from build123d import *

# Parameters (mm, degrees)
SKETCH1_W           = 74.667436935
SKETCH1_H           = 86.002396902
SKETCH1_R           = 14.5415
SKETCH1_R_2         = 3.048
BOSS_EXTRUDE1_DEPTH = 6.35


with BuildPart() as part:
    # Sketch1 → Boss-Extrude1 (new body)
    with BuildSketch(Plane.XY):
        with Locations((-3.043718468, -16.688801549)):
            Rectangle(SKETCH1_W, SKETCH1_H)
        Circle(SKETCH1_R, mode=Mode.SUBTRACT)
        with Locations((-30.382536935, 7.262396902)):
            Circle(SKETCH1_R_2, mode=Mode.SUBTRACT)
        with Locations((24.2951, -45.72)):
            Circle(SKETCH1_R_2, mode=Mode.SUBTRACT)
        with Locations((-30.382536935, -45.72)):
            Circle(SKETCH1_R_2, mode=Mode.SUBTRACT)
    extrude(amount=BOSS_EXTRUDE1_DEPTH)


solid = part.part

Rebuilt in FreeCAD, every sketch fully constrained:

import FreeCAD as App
import Part
import Sketcher

V = App.Vector
Q = App.Units.Quantity

doc = App.newDocument("Part")
body = doc.addObject("PartDesign::Body", "Body")

# Sketch on XY plane
sketch1 = doc.addObject("Sketcher::SketchObject", "Sketch")
body.addObject(sketch1)
sketch1.AttachmentSupport = (doc.XY_Plane, [""])
sketch1.MapMode = "FlatFace"
sketch1.addGeometry(Part.LineSegment(V(-40.4, 26.3, 0), V(-40.4, -59.7, 0)), False)
sketch1.addGeometry(Part.LineSegment(V(-40.4, -59.7, 0), V(34.3, -59.7, 0)), False)
sketch1.addGeometry(Part.LineSegment(V(34.3, -59.7, 0), V(34.3, 26.3, 0)), False)
sketch1.addGeometry(Part.LineSegment(V(34.3, 26.3, 0), V(-40.4, 26.3, 0)), False)
sketch1.addGeometry(Part.Circle(V(-30.4, -45.7, 0), V(0, 0, 1), 3), False)
sketch1.addGeometry(Part.Circle(V(24.3, -45.7, 0), V(0, 0, 1), 3), False)
sketch1.addGeometry(Part.Circle(V(-30.4, 7.3, 0), V(0, 0, 1), 3), False)
sketch1.addGeometry(Part.Circle(V(0, 0, 0), V(0, 0, 1), 14.5), False)
sketch1.addConstraint(Sketcher.Constraint("Coincident", 0, 2, 1, 1))
sketch1.addConstraint(Sketcher.Constraint("Coincident", 1, 2, 2, 1))
sketch1.addConstraint(Sketcher.Constraint("Coincident", 2, 2, 3, 1))
sketch1.addConstraint(Sketcher.Constraint("Coincident", 3, 2, 0, 1))
sketch1.addConstraint(Sketcher.Constraint("Vertical", 0))
sketch1.addConstraint(Sketcher.Constraint("Horizontal", 1))
sketch1.addConstraint(Sketcher.Constraint("Vertical", 2))
sketch1.addConstraint(Sketcher.Constraint("Horizontal", 3))
sketch1.addConstraint(Sketcher.Constraint("Coincident", 7, 3, -1, 1))
sketch1.addConstraint(Sketcher.Constraint("Equal", 4, 5))
sketch1.addConstraint(Sketcher.Constraint("Equal", 5, 6))
sketch1.addConstraint(Sketcher.Constraint("Horizontal", 4, 3, 5, 3))
sketch1.addConstraint(Sketcher.Constraint("Vertical", 4, 3, 6, 3))
sketch1.addConstraint(Sketcher.Constraint("Diameter", 4, Q("0.24 in")))
sketch1.addConstraint(Sketcher.Constraint("Diameter", 7, Q("1.145 in")))
sketch1.addConstraint(Sketcher.Constraint("DistanceY", 4, 3, -1, 1, Q("1.8 in")))
sketch1.addConstraint(Sketcher.Constraint("DistanceY", 0, 2, -1, 1, Q("2.35 in")))
sketch1.addConstraint(Sketcher.Constraint("DistanceX", -1, 1, 1, 2, Q("1.35 in")))
sketch1.addConstraint(Sketcher.Constraint("DistanceY", 6, 3, 2, 2, Q("0.75 in")))
sketch1.addConstraint(Sketcher.Constraint("DistanceX", -1, 1, 5, 3, Q("0.9565 in")))
sketch1.addConstraint(Sketcher.Constraint("DistanceX", 0, 2, 4, 3, Q("0.3935 in")))
sketch1.addConstraint(Sketcher.Constraint("DistanceX", 1, 1, 1, 2, 74.667437))
sketch1.addConstraint(Sketcher.Constraint("DistanceY", 0, 2, 0, 1, 86.002397))
pad1 = doc.addObject("PartDesign::Pad", "Pad")
body.addObject(pad1)
pad1.Profile = sketch1
pad1.Length = Q("0.25 in")

doc.recompute()
